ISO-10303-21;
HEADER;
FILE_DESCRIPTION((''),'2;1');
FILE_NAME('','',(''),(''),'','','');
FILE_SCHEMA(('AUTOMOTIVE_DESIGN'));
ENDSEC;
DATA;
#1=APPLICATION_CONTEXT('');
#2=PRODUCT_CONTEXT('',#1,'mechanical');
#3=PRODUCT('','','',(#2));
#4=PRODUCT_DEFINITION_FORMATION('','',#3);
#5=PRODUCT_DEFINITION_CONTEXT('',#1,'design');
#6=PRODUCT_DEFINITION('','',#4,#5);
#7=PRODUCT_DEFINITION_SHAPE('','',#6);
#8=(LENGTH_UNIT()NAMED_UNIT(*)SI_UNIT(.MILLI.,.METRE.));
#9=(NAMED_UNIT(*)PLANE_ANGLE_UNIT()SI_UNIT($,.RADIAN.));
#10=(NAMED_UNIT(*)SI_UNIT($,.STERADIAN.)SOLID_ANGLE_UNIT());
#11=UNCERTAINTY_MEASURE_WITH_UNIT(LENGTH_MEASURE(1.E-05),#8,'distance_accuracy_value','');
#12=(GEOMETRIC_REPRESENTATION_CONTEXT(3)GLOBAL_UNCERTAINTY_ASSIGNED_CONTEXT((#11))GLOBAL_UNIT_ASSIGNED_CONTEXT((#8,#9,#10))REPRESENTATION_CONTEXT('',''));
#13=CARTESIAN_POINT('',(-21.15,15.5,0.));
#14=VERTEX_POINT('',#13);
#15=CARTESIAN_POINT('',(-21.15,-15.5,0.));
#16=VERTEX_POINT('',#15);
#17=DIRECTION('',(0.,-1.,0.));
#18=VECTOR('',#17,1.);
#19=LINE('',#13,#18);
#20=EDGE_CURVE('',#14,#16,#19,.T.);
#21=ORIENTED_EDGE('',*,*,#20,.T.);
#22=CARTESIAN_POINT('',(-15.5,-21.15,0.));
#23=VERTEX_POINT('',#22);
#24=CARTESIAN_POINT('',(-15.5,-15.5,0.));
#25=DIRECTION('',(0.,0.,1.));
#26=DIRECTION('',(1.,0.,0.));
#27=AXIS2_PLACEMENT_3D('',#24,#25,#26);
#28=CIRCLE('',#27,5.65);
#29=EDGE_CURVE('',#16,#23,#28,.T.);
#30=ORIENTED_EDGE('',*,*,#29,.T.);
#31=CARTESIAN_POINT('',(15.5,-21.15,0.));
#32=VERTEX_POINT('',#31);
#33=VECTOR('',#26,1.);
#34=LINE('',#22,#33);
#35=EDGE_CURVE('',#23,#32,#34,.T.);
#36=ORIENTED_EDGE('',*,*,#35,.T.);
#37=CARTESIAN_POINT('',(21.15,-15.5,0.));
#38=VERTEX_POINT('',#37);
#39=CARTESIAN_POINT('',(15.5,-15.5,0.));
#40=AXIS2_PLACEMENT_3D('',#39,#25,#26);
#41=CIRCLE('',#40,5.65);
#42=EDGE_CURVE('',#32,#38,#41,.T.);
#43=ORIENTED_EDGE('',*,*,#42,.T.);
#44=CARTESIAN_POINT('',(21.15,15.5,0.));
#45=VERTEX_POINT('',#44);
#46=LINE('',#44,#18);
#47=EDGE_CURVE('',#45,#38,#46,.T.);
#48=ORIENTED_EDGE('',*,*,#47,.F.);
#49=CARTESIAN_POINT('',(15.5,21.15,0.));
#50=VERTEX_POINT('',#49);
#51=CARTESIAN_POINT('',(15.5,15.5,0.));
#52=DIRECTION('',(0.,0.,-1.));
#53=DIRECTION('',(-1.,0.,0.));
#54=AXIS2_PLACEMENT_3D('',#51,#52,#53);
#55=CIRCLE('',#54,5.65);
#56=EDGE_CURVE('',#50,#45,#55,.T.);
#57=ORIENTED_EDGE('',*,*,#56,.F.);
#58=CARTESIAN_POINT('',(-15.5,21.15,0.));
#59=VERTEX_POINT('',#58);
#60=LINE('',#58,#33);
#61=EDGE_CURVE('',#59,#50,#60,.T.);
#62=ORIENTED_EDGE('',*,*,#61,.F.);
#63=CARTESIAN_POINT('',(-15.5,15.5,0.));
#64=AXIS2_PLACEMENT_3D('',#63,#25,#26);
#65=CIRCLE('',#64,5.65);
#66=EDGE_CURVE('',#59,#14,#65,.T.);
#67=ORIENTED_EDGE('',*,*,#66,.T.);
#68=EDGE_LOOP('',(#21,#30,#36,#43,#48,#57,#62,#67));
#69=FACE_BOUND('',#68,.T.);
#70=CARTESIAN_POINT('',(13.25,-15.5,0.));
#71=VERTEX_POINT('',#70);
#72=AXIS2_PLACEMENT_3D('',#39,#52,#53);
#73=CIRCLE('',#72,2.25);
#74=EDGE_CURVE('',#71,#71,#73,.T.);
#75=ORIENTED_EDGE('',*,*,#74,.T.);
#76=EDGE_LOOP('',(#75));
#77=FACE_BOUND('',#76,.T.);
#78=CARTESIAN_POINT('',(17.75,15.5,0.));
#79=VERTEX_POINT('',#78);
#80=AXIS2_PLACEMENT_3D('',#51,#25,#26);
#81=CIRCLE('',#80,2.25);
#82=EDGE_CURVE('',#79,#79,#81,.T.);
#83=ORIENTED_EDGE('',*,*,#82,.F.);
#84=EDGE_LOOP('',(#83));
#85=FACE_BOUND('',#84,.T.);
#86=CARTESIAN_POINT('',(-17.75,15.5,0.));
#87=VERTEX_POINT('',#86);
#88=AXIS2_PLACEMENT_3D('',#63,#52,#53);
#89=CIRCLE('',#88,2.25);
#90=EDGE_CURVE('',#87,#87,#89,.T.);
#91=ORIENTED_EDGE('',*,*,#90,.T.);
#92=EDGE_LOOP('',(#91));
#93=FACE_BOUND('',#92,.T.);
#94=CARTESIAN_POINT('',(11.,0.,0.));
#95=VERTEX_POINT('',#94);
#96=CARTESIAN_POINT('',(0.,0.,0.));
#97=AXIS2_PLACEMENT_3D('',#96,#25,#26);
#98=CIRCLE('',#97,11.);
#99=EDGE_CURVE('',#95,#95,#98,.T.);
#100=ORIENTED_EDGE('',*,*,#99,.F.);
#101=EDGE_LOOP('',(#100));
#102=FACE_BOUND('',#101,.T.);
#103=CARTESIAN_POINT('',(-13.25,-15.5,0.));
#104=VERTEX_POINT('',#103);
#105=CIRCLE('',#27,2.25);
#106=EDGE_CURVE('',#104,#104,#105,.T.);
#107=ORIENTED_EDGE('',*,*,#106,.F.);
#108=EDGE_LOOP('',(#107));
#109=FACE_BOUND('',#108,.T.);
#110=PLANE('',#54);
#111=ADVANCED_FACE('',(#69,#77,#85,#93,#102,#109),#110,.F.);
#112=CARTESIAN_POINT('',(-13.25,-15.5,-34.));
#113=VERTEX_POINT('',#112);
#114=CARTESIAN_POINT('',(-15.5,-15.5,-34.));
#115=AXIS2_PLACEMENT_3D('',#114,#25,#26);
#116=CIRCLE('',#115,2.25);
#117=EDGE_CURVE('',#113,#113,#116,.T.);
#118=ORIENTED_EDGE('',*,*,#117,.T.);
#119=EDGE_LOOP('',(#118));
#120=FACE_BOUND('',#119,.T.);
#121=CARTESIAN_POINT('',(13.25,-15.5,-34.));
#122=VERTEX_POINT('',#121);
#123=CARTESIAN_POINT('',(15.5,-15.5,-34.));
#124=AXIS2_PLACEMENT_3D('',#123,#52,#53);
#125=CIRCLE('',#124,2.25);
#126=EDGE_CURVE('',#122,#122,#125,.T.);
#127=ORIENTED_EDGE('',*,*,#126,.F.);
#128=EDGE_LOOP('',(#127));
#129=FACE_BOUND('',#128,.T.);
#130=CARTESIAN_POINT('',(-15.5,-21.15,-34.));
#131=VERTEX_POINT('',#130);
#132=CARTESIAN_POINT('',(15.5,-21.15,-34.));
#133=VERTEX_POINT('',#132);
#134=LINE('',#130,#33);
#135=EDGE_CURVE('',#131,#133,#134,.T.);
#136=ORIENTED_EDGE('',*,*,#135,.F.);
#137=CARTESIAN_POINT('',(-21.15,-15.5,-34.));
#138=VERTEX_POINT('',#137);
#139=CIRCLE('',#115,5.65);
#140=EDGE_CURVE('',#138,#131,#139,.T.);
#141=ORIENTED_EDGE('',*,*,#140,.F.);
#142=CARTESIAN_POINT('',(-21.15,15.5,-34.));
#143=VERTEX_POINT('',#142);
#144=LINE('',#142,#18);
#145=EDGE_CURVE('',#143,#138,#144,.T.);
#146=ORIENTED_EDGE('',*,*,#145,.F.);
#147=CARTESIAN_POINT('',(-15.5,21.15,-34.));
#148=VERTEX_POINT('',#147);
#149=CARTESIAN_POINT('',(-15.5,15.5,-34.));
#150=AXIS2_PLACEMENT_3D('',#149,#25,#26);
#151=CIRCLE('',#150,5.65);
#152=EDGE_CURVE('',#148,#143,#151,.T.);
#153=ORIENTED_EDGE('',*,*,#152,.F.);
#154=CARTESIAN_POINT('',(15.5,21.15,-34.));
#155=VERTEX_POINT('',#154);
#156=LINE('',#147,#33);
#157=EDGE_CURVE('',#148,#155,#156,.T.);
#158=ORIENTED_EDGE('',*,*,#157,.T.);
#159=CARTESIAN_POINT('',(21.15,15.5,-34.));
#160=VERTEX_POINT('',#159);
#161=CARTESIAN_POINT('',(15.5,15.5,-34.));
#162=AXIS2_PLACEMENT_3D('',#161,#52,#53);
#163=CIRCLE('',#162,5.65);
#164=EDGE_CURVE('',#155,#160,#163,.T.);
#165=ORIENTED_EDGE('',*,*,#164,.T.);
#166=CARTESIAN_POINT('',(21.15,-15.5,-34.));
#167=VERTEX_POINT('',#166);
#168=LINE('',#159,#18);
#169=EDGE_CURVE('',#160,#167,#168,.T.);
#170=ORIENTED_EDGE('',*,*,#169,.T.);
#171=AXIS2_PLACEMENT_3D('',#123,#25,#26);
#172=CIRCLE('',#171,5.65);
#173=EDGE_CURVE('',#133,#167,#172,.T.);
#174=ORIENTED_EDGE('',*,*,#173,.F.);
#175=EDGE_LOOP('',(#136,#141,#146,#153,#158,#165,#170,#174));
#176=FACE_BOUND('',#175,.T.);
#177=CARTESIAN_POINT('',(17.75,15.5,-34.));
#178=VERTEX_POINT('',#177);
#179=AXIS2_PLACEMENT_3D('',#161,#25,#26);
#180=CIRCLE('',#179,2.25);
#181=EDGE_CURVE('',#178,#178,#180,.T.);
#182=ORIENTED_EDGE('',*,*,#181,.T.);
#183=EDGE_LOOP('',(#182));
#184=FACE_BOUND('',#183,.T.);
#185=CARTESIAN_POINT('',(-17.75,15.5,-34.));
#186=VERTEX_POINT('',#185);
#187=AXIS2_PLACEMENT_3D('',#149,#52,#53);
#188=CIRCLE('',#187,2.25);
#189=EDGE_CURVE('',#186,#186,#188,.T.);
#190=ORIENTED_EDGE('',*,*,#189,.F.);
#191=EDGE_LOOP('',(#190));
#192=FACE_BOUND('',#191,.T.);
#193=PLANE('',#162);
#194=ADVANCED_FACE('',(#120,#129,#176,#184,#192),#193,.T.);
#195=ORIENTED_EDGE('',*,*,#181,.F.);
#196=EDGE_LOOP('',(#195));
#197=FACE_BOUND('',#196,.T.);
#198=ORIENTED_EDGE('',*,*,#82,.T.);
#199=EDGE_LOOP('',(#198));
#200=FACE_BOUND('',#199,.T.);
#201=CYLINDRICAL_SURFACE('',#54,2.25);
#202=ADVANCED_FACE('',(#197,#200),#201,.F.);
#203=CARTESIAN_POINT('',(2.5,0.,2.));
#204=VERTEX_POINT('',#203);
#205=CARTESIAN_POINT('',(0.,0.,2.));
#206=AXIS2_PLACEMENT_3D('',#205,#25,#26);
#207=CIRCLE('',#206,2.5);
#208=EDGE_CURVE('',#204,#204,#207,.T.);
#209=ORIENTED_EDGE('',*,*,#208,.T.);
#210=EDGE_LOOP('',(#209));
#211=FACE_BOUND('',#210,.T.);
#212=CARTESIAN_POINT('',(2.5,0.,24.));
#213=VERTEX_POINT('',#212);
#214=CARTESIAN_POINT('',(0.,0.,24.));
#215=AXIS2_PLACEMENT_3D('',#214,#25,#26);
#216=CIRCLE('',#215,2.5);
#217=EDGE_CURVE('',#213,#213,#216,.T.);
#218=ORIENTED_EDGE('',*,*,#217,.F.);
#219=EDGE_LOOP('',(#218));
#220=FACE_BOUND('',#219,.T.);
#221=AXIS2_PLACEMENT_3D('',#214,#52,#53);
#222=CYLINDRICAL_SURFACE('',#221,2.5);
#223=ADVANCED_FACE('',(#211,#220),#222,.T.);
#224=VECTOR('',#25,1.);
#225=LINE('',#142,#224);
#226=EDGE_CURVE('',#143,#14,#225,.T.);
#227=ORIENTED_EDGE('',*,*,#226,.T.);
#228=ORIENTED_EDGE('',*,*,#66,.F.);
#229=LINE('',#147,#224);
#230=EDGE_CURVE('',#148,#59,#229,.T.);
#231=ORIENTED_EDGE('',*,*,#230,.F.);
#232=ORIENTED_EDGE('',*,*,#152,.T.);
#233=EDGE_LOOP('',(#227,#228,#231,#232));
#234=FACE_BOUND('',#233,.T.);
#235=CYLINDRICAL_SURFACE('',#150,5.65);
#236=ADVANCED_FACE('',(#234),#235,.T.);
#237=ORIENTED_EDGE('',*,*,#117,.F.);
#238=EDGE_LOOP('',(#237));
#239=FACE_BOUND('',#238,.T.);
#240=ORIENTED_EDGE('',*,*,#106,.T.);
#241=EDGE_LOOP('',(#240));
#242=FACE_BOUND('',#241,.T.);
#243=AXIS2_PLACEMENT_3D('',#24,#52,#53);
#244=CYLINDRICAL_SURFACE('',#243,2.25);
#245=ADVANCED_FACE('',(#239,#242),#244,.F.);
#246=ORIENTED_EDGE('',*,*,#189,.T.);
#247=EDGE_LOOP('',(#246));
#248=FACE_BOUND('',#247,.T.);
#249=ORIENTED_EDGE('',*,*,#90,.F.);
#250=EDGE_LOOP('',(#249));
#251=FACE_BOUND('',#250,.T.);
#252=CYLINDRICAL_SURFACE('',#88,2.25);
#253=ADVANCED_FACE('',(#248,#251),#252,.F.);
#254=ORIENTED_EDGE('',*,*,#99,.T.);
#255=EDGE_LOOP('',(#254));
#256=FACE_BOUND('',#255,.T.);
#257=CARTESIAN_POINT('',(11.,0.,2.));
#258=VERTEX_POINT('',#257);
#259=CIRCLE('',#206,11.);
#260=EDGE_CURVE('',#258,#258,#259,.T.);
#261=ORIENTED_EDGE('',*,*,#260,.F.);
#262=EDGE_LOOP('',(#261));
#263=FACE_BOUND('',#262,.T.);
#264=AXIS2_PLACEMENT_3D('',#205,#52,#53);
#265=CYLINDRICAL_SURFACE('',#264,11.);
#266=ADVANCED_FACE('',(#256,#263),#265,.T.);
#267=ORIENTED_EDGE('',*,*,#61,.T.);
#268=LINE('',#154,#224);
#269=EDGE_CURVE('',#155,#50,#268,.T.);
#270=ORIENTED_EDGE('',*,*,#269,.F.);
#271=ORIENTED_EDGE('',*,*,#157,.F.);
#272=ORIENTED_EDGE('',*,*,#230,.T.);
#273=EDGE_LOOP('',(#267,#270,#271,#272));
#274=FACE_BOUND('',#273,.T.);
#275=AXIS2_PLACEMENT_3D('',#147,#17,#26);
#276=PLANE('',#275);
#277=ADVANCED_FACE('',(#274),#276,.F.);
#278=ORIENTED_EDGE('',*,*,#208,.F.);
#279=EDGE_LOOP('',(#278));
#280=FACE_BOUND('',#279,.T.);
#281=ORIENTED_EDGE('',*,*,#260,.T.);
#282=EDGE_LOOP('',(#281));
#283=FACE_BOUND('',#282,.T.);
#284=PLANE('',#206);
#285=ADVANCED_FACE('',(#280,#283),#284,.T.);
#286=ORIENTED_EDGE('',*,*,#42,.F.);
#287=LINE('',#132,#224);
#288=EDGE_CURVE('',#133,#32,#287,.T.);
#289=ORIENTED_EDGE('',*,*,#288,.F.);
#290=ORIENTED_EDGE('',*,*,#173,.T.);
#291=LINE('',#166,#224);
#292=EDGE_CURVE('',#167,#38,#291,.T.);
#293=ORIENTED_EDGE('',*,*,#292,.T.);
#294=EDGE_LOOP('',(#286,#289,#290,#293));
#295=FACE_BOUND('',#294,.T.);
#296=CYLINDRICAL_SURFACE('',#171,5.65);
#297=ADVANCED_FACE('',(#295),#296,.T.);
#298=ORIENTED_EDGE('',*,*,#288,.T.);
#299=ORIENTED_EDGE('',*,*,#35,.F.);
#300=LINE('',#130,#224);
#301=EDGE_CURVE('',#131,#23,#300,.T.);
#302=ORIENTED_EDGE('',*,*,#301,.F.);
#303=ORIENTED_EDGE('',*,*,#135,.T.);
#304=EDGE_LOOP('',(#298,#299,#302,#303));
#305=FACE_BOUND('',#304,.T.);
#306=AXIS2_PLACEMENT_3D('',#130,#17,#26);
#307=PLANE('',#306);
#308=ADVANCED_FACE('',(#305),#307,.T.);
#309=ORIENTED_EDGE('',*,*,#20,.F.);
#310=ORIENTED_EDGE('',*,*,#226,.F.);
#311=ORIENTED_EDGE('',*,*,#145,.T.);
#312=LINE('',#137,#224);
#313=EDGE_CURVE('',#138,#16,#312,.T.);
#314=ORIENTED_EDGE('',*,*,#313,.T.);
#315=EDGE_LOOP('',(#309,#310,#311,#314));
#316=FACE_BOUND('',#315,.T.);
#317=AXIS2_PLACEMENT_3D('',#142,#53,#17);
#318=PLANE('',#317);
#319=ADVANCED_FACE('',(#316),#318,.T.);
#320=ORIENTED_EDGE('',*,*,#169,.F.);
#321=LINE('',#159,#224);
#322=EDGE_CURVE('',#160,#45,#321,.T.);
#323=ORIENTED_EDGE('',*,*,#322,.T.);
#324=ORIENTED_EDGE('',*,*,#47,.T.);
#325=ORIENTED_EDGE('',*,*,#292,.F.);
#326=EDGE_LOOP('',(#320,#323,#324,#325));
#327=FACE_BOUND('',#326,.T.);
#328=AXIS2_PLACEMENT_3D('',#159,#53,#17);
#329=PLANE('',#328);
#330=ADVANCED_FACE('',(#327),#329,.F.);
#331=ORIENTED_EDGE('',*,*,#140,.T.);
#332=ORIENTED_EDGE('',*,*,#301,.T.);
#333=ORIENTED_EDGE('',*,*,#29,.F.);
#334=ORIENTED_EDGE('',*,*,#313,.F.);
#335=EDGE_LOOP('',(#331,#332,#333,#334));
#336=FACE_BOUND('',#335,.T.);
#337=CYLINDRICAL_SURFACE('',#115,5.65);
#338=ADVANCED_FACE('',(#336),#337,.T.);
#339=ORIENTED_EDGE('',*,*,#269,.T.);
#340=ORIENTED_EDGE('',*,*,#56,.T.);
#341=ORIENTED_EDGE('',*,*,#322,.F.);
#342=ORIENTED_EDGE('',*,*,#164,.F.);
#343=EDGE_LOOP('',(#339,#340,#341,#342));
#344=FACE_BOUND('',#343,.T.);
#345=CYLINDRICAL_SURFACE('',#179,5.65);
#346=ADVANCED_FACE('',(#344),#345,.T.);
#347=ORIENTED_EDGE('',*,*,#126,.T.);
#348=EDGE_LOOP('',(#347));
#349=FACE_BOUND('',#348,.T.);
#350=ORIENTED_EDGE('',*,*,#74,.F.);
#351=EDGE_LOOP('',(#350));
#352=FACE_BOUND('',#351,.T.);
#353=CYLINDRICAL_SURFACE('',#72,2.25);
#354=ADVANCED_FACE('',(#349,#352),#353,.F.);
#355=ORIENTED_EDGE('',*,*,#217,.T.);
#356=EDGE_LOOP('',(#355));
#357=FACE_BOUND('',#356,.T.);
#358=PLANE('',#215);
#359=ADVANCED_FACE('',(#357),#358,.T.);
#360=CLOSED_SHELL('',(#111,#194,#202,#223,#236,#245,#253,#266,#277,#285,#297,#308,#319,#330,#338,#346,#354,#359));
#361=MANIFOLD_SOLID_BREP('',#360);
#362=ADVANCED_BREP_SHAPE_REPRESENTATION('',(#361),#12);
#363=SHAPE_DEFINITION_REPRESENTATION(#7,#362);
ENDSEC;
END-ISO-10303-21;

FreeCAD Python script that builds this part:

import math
import FreeCAD as App
import Part
import Sketcher

V = App.Vector
Q = App.Units.Quantity

doc = App.newDocument("Part")
body = doc.addObject("PartDesign::Body", "Body")

# Sketch on XY plane
sketch1 = doc.addObject("Sketcher::SketchObject", "Sketch")
body.addObject(sketch1)
sketch1.AttachmentSupport = (doc.XY_Plane, [""])
sketch1.MapMode = "FlatFace"
sketch1.addGeometry(Part.Circle(V(0, 0, 0), V(0, 0, 1), 2.5), False)
sketch1.addConstraint([
    Sketcher.Constraint("Coincident", 0, 3, -1, 1),
    Sketcher.Constraint("Diameter", 0, Q("5 mm")),
])
pad1 = doc.addObject("PartDesign::Pad", "Pad")
body.addObject(pad1)
pad1.Profile = sketch1
pad1.Length = 24

# Sketch on XY plane
sketch2 = doc.addObject("Sketcher::SketchObject", "Sketch001")
body.addObject(sketch2)
sketch2.AttachmentSupport = (doc.XY_Plane, [""])
sketch2.MapMode = "FlatFace"
sketch2.addGeometry(Part.Circle(V(0, 0, 0), V(0, 0, 1), 11), False)
sketch2.addConstraint([
    Sketcher.Constraint("Coincident", 0, 3, -1, 1),
    Sketcher.Constraint("Diameter", 0, Q("22 mm")),
])
pad2 = doc.addObject("PartDesign::Pad", "Pad001")
body.addObject(pad2)
pad2.Profile = sketch2
pad2.Length = 2

# Sketch on XY plane
sketch3 = doc.addObject("Sketcher::SketchObject", "Sketch002")
body.addObject(sketch3)
sketch3.AttachmentSupport = (doc.XY_Plane, [""])
sketch3.MapMode = "FlatFace"
sketch3.addGeometry([
    Part.LineSegment(V(-16, 21, 0), V(16, 21, 0)),  # 0
    Part.ArcOfCircle(Part.Circle(V(16, 16, 0), V(0, 0, 1), 6), math.radians(0), math.radians(90)),  # 1
    Part.LineSegment(V(21, 16, 0), V(21, -16, 0)),  # 2
    Part.ArcOfCircle(Part.Circle(V(16, -16, 0), V(0, 0, 1), 6), math.radians(-90), math.radians(0)),  # 3
    Part.LineSegment(V(16, -21, 0), V(-16, -21, 0)),  # 4
    Part.ArcOfCircle(Part.Circle(V(-16, -16, 0), V(0, 0, 1), 6), math.radians(180), math.radians(270)),  # 5
    Part.LineSegment(V(-21, -16, 0), V(-21, 16, 0)),  # 6
    Part.ArcOfCircle(Part.Circle(V(-16, 16, 0), V(0, 0, 1), 6), math.radians(90), math.radians(180)),  # 7
], False)
sketch3.addConstraint([
    Sketcher.Constraint("Tangent", 0, 2, 1, 2),
    Sketcher.Constraint("Tangent", 1, 1, 2, 1),
    Sketcher.Constraint("Tangent", 2, 2, 3, 2),
    Sketcher.Constraint("Tangent", 3, 1, 4, 1),
    Sketcher.Constraint("Tangent", 4, 2, 5, 2),
    Sketcher.Constraint("Tangent", 5, 1, 6, 1),
    Sketcher.Constraint("Tangent", 6, 2, 7, 2),
    Sketcher.Constraint("Tangent", 7, 1, 0, 1),
    Sketcher.Constraint("Horizontal", 0),
    Sketcher.Constraint("Vertical", 2),
    Sketcher.Constraint("Horizontal", 4),
    Sketcher.Constraint("Vertical", 6),
    Sketcher.Constraint("Equal", 1, 3),
    Sketcher.Constraint("Equal", 3, 5),
    Sketcher.Constraint("Equal", 5, 7),
    Sketcher.Constraint("Symmetric", 1, 3, 5, 3, -1, 1),
    Sketcher.Constraint("Equal", 4, 2),
    Sketcher.Constraint("DistanceX", 0, 1, 0, 2, Q("31 mm")),
    Sketcher.Constraint("Radius", 1, Q("5.65 mm")),
])
pad3 = doc.addObject("PartDesign::Pad", "Pad002")
body.addObject(pad3)
pad3.Profile = sketch3
pad3.Length = 34
pad3.Reversed = True

# Sketch on XY plane
sketch4 = doc.addObject("Sketcher::SketchObject", "Sketch003")
body.addObject(sketch4)
sketch4.AttachmentSupport = (doc.XY_Plane, [""])
sketch4.MapMode = "FlatFace"
sketch4.AttachmentOffset = App.Placement(V(0, 0, -34), App.Rotation())
sketch4.addGeometry([
    Part.Circle(V(15.5, -15.5, 0), V(0, 0, 1), 2.2),
    Part.Circle(V(-15.5, -15.5, 0), V(0, 0, 1), 2.2),
    Part.Circle(V(15.5, 15.5, 0), V(0, 0, 1), 2.2),
    Part.Circle(V(-15.5, 15.5, 0), V(0, 0, 1), 2.2),
], False)
sketch4.addConstraint([
    Sketcher.Constraint("Equal", 0, 1),
    Sketcher.Constraint("Equal", 1, 2),
    Sketcher.Constraint("Equal", 2, 3),
    Sketcher.Constraint("Symmetric", 1, 3, 2, 3, -1, 1),
    Sketcher.Constraint("Symmetric", 0, 3, 3, 3, -1, 1),
    Sketcher.Constraint("Symmetric", 0, 3, 1, 3, -2),
    Sketcher.Constraint("Diameter", 0, Q("4.5 mm")),
    Sketcher.Constraint("DistanceX", 1, 3, 0, 3, Q("31 mm")),
    Sketcher.Constraint("DistanceY", 0, 3, 2, 3, Q("31 mm")),
])
pocket1 = doc.addObject("PartDesign::Pocket", "Pocket")
body.addObject(pocket1)
pocket1.Profile = sketch4
pocket1.Length = 34
pocket1.Reversed = True

doc.recompute()
